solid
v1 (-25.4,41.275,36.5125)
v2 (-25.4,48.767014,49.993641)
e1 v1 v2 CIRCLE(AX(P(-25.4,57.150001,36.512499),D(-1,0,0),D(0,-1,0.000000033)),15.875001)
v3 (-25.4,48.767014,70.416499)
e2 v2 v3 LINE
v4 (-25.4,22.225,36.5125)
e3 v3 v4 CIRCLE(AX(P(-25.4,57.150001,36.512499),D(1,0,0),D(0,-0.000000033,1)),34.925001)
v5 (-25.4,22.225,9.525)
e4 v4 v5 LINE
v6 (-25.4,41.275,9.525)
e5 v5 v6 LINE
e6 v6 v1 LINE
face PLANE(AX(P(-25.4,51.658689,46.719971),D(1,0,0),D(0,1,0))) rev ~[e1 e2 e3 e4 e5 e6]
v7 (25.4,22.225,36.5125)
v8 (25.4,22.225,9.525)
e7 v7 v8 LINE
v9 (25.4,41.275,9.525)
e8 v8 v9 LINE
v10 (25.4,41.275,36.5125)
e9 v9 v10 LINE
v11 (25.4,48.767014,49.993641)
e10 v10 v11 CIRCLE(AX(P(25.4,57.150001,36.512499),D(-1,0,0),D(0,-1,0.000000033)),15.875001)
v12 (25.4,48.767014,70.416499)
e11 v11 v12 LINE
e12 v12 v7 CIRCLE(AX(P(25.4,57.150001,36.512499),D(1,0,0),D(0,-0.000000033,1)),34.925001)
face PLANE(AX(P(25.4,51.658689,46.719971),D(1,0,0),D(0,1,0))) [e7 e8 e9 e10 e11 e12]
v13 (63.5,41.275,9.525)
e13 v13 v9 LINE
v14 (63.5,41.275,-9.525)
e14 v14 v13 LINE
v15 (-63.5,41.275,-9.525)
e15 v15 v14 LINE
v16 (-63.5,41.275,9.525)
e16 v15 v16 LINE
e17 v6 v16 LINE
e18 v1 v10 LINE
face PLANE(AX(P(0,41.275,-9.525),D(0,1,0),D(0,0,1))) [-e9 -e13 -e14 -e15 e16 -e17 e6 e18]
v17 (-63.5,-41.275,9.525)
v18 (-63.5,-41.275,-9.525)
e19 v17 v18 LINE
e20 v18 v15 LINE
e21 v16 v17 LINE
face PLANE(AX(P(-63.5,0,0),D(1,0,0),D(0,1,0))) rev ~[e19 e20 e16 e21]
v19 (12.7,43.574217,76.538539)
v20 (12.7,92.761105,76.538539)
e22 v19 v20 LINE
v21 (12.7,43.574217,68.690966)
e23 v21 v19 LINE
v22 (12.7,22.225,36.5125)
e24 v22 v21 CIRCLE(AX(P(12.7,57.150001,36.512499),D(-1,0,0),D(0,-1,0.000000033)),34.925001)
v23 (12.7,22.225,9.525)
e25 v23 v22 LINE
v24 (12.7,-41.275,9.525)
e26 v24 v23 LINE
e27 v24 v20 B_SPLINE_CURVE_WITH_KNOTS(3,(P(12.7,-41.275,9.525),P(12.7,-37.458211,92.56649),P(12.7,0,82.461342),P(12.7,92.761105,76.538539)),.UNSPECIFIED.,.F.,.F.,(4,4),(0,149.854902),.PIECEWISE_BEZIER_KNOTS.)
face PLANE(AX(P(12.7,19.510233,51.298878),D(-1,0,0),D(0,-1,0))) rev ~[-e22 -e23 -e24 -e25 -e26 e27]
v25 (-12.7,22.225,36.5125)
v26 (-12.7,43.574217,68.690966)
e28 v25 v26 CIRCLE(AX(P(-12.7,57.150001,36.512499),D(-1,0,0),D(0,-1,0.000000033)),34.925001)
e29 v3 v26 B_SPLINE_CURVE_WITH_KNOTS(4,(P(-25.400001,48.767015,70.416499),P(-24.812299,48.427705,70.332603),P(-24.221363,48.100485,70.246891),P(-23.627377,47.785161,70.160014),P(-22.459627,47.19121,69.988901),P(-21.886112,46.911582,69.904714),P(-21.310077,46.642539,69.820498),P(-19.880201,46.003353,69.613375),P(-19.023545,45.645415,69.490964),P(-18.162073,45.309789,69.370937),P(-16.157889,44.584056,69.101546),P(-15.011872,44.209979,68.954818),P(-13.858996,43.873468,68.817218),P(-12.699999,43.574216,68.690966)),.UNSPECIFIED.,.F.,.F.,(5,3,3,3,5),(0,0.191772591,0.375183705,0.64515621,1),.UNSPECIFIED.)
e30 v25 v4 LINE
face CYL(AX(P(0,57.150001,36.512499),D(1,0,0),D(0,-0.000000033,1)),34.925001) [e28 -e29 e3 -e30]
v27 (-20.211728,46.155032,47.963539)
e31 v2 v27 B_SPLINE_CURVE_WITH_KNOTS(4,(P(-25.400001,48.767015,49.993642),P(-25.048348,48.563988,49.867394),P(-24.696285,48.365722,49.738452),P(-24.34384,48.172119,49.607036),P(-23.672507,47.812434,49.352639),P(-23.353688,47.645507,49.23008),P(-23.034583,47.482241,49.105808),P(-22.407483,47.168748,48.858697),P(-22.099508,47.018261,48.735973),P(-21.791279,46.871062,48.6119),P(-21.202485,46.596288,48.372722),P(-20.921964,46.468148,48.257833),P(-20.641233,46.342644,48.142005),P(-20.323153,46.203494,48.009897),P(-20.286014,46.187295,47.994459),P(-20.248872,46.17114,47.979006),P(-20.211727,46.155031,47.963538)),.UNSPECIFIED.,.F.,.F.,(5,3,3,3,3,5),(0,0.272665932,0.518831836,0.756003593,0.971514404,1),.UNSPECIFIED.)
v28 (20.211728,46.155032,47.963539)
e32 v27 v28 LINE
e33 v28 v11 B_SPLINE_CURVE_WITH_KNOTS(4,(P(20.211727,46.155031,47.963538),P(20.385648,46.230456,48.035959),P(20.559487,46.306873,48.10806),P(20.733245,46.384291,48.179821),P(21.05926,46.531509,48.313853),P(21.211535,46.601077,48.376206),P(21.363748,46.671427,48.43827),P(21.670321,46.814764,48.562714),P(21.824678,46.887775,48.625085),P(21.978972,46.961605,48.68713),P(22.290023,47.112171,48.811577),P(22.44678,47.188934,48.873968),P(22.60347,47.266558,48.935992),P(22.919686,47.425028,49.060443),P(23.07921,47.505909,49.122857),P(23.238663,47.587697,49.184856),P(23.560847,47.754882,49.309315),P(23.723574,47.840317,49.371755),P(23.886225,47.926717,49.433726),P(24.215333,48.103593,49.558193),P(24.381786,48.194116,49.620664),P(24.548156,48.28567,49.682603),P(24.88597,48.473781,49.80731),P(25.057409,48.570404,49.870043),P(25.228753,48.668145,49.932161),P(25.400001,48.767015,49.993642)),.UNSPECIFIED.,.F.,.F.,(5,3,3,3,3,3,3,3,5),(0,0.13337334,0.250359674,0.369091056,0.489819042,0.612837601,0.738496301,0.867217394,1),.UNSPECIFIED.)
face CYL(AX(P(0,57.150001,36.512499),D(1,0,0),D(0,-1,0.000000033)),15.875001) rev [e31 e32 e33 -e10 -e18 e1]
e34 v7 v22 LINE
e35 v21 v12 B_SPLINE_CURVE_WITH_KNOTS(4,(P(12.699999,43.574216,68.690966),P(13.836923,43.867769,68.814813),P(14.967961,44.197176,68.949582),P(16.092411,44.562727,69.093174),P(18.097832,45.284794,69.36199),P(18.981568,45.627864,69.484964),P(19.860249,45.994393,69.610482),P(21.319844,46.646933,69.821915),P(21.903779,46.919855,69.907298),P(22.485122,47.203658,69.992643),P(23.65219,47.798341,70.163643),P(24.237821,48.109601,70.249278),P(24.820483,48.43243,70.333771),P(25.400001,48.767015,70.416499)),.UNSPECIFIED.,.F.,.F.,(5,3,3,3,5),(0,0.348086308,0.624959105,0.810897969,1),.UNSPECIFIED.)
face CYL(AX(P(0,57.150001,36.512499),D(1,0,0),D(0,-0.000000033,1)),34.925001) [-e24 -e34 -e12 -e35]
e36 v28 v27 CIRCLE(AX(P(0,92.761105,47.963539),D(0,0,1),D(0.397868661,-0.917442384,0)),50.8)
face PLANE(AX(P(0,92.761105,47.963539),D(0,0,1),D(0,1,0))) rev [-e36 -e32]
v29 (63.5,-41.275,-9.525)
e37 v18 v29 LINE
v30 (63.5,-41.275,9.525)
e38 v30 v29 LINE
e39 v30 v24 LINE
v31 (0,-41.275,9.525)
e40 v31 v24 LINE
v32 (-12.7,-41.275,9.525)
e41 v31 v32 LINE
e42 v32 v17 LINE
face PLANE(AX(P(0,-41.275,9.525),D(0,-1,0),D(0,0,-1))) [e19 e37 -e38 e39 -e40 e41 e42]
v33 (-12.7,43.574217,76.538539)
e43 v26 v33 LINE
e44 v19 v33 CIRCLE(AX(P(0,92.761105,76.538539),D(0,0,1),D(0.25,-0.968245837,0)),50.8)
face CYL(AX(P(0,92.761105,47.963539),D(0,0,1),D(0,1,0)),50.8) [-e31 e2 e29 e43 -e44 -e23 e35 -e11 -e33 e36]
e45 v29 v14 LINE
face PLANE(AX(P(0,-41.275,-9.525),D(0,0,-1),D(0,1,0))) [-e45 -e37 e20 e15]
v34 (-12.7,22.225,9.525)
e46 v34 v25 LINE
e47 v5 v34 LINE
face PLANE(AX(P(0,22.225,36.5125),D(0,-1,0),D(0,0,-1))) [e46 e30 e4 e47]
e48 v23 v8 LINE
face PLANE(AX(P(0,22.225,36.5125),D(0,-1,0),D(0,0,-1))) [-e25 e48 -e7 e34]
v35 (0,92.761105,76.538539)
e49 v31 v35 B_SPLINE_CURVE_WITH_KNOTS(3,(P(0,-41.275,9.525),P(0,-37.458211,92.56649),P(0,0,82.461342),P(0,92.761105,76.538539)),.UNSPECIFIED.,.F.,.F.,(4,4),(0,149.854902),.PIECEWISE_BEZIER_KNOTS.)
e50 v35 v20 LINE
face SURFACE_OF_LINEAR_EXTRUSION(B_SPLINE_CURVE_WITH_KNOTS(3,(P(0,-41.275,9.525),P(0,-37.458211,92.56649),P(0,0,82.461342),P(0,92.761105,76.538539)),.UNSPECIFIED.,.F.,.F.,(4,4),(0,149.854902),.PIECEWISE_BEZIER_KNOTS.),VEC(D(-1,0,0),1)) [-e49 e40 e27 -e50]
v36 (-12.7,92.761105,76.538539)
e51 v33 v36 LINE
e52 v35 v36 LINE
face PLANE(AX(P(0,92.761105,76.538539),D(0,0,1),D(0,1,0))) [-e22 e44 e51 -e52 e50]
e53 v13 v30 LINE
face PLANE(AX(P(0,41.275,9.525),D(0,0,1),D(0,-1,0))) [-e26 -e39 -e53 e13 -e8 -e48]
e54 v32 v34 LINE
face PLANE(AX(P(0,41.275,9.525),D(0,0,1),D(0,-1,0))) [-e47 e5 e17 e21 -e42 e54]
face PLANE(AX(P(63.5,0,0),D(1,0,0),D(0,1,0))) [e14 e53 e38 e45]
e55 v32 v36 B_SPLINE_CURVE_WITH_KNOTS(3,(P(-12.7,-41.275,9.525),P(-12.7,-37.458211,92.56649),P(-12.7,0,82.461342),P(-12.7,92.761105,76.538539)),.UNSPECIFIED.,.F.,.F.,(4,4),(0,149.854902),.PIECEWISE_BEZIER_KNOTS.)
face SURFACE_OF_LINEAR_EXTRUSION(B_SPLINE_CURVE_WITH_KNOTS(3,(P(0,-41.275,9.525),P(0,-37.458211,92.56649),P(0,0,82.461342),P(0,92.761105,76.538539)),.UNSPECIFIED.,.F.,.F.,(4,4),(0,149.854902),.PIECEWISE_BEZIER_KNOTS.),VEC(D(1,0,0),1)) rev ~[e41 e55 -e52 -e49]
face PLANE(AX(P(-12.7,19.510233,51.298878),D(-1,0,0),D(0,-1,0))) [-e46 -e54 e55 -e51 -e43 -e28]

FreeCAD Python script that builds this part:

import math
import FreeCAD as App
import Part
import Sketcher

V = App.Vector
Q = App.Units.Quantity


def add_polygon(sketch, points):
    """Adds a closed chain of lines whose ends are joined by coincident constraints."""
    first, n = sketch.GeometryCount, len(points)
    for a, b in zip(points, points[1:] + points[:1]):
        sketch.addGeometry(Part.LineSegment(App.Vector(*a, 0), App.Vector(*b, 0)), False)
    for i in range(n):
        sketch.addConstraint(Sketcher.Constraint("Coincident", first + i, 2, first + (i + 1) % n, 1))

doc = App.newDocument("Part")
body = doc.addObject("PartDesign::Body", "Body")

# Sketch on YZ plane
sketch1 = doc.addObject("Sketcher::SketchObject", "Sketch")
body.addObject(sketch1)
sketch1.AttachmentSupport = (doc.YZ_Plane, [""])
sketch1.MapMode = "FlatFace"
add_polygon(sketch1, [(-41, 10), (-41, -10), (41, -10), (41, 10)])  # lines 0-3
sketch1.addConstraint([
    Sketcher.Constraint("Vertical", 0),
    Sketcher.Constraint("Horizontal", 1),
    Sketcher.Constraint("Vertical", 2),
    Sketcher.Constraint("Horizontal", 3),
    Sketcher.Constraint("Symmetric", 0, 2, 2, 2, -1, 1),
    Sketcher.Constraint("DistanceX", 1, 1, 1, 2, Q("3.25 in")),
    Sketcher.Constraint("DistanceY", 0, 2, 0, 1, Q("0.75 in")),
])
pad1 = doc.addObject("PartDesign::Pad", "Pad")
body.addObject(pad1)
pad1.Profile = sketch1
pad1.Length = Q("5 in")
pad1.Midplane = True

# Sketch on YZ plane
sketch2 = doc.addObject("Sketcher::SketchObject", "Sketch001")
body.addObject(sketch2)
sketch2.AttachmentSupport = (doc.YZ_Plane, [""])
sketch2.MapMode = "FlatFace"
sketch2.addGeometry([
    Part.LineSegment(V(22, 37, 0), V(22, 10, 0)),  # 0
    Part.LineSegment(V(22, 10, 0), V(41, 10, 0)),  # 1
    Part.LineSegment(V(41, 10, 0), V(41, 37, 0)),  # 2
    Part.ArcOfCircle(Part.Circle(V(57, 37, 0), V(0, 0, 1), 16), math.radians(90), math.radians(180)),  # 3
    Part.LineSegment(V(57, 52, 0), V(93, 52, 0)),  # 4
    Part.LineSegment(V(93, 52, 0), V(93, 71, 0)),  # 5
    Part.LineSegment(V(93, 71, 0), V(57, 71, 0)),  # 6
    Part.ArcOfCircle(Part.Circle(V(57, 37, 0), V(0, 0, 1), 35), math.radians(90), math.radians(180)),  # 7
], False)
sketch2.addConstraint([
    Sketcher.Constraint("Coincident", 0, 2, 1, 1),
    Sketcher.Constraint("Coincident", 1, 2, 2, 1),
    Sketcher.Constraint("Tangent", 2, 2, 3, 2),
    Sketcher.Constraint("Tangent", 3, 1, 4, 1),
    Sketcher.Constraint("Coincident", 4, 2, 5, 1),
    Sketcher.Constraint("Coincident", 5, 2, 6, 1),
    Sketcher.Constraint("Tangent", 6, 2, 7, 1),
    Sketcher.Constraint("Tangent", 7, 2, 0, 1),
    Sketcher.Constraint("Vertical", 0),
    Sketcher.Constraint("Horizontal", 1),
    Sketcher.Constraint("Vertical", 2),
    Sketcher.Constraint("Horizontal", 4),
    Sketcher.Constraint("Vertical", 5),
    Sketcher.Constraint("Horizontal", 6),
    Sketcher.Constraint("Coincident", 7, 3, 3, 3),
    Sketcher.Constraint("Radius", 3, Q("0.625 in")),
    Sketcher.Constraint("Radius", 7, Q("1.375 in")),
    Sketcher.Constraint("DistanceY", 0, 2, 0, 1, Q("1.0625 in")),
    Sketcher.Constraint("DistanceX", -1, 1, 3, 3, Q("2.25 in")),
    Sketcher.Constraint("DistanceY", -1, 1, 3, 3, Q("1.4375 in")),
    Sketcher.Constraint("DistanceX", 4, 1, 4, 2, 35.611105),
])
pad2 = doc.addObject("PartDesign::Pad", "Pad001")
body.addObject(pad2)
pad2.Profile = sketch2
pad2.Length = Q("2 in")
pad2.Midplane = True

# Sketch on YZ plane
sketch3 = doc.addObject("Sketcher::SketchObject", "Sketch002")
body.addObject(sketch3)
sketch3.AttachmentSupport = (doc.YZ_Plane, [""])
sketch3.MapMode = "FlatFace"
sketch3.addGeometry([
    Part.BSplineCurve([V(-41.275, 9.525, 0), V(-37.458211, 92.56649, 0), V(0, 82.461342, 0), V(92.761105, 76.538539, 0)], [4, 4], [0, 149.854902], False, 3, [1, 1, 1, 1], False),  # 0
    Part.LineSegment(V(-41.275, 9.525, 0), V(22.225, 9.525, 0)),  # 1
    Part.LineSegment(V(22.225, 9.525, 0), V(22.225, 36.5125, 0)),  # 2
    Part.ArcOfCircle(Part.Circle(V(57.150001, 36.512499, 0), V(0, 0, 1), 34.925001), math.radians(90.000002), math.radians(179.999998)),  # 3
    Part.LineSegment(V(57.15, 71.4375, 0), V(92.761105, 71.4375, 0)),  # 4
    Part.LineSegment(V(92.761105, 71.4375, 0), V(92.761105, 76.538539, 0)),  # 5
], False)
sketch3.addConstraint([
    Sketcher.Constraint("Block", 0),
    Sketcher.Constraint("Coincident", 0, 1, 1, 1),
    Sketcher.Constraint("Coincident", 1, 2, 2, 1),
    Sketcher.Constraint("Tangent", 2, 2, 3, 2),
    Sketcher.Constraint("Tangent", 3, 1, 4, 1),
    Sketcher.Constraint("Coincident", 4, 2, 5, 1),
    Sketcher.Constraint("Coincident", 5, 2, 0, 2),
    Sketcher.Constraint("Horizontal", 1),
    Sketcher.Constraint("Vertical", 2),
    Sketcher.Constraint("Horizontal", 4),
    Sketcher.Constraint("Vertical", 5),
    Sketcher.Constraint("DistanceX", 1, 1, 1, 2, Q("2.5 in")),
    Sketcher.Constraint("Radius", 3, Q("1.375 in")),
    Sketcher.Constraint("DistanceY", 2, 1, 2, 2, Q("1.0625 in")),
])
pad3 = doc.addObject("PartDesign::Pad", "Pad002")
body.addObject(pad3)
pad3.Profile = sketch3
pad3.Length = Q("1 in")
pad3.Midplane = True

# Sketch on YZ plane
sketch4 = doc.addObject("Sketcher::SketchObject", "Sketch003")
body.addObject(sketch4)
sketch4.AttachmentSupport = (doc.YZ_Plane, [""])
sketch4.MapMode = "FlatFace"
add_polygon(sketch4, [(144, 77), (93, 77), (93, 48), (144, 48)])  # lines 0-3
sketch4.addGeometry(Part.LineSegment(V(93, 48, 0), V(93, 77, 0)), True)  # axis
sketch4.addConstraint([
    Sketcher.Constraint("Horizontal", 0),
    Sketcher.Constraint("Vertical", 1),
    Sketcher.Constraint("Horizontal", 2),
    Sketcher.Constraint("Vertical", 3),
    Sketcher.Constraint("Vertical", 4),
    Sketcher.Constraint("Coincident", 4, 1, 1, 2),
    Sketcher.Constraint("Horizontal", 3, 2, 4, 2),
    Sketcher.Constraint("DistanceX", 0, 2, 0, 1, Q("2 in")),
    Sketcher.Constraint("DistanceY", 1, 2, 1, 1, Q("1.125 in")),
    Sketcher.Constraint("DistanceY", -1, 1, 0, 2, 76.538539),
    Sketcher.Constraint("DistanceX", -1, 1, 0, 2, 92.761105),
])
revolution = doc.addObject("PartDesign::Revolution", "Revolution")
body.addObject(revolution)
revolution.Profile = sketch4
revolution.ReferenceAxis = (sketch4, ["Axis0"])
revolution.Angle = 360

doc.recompute()
